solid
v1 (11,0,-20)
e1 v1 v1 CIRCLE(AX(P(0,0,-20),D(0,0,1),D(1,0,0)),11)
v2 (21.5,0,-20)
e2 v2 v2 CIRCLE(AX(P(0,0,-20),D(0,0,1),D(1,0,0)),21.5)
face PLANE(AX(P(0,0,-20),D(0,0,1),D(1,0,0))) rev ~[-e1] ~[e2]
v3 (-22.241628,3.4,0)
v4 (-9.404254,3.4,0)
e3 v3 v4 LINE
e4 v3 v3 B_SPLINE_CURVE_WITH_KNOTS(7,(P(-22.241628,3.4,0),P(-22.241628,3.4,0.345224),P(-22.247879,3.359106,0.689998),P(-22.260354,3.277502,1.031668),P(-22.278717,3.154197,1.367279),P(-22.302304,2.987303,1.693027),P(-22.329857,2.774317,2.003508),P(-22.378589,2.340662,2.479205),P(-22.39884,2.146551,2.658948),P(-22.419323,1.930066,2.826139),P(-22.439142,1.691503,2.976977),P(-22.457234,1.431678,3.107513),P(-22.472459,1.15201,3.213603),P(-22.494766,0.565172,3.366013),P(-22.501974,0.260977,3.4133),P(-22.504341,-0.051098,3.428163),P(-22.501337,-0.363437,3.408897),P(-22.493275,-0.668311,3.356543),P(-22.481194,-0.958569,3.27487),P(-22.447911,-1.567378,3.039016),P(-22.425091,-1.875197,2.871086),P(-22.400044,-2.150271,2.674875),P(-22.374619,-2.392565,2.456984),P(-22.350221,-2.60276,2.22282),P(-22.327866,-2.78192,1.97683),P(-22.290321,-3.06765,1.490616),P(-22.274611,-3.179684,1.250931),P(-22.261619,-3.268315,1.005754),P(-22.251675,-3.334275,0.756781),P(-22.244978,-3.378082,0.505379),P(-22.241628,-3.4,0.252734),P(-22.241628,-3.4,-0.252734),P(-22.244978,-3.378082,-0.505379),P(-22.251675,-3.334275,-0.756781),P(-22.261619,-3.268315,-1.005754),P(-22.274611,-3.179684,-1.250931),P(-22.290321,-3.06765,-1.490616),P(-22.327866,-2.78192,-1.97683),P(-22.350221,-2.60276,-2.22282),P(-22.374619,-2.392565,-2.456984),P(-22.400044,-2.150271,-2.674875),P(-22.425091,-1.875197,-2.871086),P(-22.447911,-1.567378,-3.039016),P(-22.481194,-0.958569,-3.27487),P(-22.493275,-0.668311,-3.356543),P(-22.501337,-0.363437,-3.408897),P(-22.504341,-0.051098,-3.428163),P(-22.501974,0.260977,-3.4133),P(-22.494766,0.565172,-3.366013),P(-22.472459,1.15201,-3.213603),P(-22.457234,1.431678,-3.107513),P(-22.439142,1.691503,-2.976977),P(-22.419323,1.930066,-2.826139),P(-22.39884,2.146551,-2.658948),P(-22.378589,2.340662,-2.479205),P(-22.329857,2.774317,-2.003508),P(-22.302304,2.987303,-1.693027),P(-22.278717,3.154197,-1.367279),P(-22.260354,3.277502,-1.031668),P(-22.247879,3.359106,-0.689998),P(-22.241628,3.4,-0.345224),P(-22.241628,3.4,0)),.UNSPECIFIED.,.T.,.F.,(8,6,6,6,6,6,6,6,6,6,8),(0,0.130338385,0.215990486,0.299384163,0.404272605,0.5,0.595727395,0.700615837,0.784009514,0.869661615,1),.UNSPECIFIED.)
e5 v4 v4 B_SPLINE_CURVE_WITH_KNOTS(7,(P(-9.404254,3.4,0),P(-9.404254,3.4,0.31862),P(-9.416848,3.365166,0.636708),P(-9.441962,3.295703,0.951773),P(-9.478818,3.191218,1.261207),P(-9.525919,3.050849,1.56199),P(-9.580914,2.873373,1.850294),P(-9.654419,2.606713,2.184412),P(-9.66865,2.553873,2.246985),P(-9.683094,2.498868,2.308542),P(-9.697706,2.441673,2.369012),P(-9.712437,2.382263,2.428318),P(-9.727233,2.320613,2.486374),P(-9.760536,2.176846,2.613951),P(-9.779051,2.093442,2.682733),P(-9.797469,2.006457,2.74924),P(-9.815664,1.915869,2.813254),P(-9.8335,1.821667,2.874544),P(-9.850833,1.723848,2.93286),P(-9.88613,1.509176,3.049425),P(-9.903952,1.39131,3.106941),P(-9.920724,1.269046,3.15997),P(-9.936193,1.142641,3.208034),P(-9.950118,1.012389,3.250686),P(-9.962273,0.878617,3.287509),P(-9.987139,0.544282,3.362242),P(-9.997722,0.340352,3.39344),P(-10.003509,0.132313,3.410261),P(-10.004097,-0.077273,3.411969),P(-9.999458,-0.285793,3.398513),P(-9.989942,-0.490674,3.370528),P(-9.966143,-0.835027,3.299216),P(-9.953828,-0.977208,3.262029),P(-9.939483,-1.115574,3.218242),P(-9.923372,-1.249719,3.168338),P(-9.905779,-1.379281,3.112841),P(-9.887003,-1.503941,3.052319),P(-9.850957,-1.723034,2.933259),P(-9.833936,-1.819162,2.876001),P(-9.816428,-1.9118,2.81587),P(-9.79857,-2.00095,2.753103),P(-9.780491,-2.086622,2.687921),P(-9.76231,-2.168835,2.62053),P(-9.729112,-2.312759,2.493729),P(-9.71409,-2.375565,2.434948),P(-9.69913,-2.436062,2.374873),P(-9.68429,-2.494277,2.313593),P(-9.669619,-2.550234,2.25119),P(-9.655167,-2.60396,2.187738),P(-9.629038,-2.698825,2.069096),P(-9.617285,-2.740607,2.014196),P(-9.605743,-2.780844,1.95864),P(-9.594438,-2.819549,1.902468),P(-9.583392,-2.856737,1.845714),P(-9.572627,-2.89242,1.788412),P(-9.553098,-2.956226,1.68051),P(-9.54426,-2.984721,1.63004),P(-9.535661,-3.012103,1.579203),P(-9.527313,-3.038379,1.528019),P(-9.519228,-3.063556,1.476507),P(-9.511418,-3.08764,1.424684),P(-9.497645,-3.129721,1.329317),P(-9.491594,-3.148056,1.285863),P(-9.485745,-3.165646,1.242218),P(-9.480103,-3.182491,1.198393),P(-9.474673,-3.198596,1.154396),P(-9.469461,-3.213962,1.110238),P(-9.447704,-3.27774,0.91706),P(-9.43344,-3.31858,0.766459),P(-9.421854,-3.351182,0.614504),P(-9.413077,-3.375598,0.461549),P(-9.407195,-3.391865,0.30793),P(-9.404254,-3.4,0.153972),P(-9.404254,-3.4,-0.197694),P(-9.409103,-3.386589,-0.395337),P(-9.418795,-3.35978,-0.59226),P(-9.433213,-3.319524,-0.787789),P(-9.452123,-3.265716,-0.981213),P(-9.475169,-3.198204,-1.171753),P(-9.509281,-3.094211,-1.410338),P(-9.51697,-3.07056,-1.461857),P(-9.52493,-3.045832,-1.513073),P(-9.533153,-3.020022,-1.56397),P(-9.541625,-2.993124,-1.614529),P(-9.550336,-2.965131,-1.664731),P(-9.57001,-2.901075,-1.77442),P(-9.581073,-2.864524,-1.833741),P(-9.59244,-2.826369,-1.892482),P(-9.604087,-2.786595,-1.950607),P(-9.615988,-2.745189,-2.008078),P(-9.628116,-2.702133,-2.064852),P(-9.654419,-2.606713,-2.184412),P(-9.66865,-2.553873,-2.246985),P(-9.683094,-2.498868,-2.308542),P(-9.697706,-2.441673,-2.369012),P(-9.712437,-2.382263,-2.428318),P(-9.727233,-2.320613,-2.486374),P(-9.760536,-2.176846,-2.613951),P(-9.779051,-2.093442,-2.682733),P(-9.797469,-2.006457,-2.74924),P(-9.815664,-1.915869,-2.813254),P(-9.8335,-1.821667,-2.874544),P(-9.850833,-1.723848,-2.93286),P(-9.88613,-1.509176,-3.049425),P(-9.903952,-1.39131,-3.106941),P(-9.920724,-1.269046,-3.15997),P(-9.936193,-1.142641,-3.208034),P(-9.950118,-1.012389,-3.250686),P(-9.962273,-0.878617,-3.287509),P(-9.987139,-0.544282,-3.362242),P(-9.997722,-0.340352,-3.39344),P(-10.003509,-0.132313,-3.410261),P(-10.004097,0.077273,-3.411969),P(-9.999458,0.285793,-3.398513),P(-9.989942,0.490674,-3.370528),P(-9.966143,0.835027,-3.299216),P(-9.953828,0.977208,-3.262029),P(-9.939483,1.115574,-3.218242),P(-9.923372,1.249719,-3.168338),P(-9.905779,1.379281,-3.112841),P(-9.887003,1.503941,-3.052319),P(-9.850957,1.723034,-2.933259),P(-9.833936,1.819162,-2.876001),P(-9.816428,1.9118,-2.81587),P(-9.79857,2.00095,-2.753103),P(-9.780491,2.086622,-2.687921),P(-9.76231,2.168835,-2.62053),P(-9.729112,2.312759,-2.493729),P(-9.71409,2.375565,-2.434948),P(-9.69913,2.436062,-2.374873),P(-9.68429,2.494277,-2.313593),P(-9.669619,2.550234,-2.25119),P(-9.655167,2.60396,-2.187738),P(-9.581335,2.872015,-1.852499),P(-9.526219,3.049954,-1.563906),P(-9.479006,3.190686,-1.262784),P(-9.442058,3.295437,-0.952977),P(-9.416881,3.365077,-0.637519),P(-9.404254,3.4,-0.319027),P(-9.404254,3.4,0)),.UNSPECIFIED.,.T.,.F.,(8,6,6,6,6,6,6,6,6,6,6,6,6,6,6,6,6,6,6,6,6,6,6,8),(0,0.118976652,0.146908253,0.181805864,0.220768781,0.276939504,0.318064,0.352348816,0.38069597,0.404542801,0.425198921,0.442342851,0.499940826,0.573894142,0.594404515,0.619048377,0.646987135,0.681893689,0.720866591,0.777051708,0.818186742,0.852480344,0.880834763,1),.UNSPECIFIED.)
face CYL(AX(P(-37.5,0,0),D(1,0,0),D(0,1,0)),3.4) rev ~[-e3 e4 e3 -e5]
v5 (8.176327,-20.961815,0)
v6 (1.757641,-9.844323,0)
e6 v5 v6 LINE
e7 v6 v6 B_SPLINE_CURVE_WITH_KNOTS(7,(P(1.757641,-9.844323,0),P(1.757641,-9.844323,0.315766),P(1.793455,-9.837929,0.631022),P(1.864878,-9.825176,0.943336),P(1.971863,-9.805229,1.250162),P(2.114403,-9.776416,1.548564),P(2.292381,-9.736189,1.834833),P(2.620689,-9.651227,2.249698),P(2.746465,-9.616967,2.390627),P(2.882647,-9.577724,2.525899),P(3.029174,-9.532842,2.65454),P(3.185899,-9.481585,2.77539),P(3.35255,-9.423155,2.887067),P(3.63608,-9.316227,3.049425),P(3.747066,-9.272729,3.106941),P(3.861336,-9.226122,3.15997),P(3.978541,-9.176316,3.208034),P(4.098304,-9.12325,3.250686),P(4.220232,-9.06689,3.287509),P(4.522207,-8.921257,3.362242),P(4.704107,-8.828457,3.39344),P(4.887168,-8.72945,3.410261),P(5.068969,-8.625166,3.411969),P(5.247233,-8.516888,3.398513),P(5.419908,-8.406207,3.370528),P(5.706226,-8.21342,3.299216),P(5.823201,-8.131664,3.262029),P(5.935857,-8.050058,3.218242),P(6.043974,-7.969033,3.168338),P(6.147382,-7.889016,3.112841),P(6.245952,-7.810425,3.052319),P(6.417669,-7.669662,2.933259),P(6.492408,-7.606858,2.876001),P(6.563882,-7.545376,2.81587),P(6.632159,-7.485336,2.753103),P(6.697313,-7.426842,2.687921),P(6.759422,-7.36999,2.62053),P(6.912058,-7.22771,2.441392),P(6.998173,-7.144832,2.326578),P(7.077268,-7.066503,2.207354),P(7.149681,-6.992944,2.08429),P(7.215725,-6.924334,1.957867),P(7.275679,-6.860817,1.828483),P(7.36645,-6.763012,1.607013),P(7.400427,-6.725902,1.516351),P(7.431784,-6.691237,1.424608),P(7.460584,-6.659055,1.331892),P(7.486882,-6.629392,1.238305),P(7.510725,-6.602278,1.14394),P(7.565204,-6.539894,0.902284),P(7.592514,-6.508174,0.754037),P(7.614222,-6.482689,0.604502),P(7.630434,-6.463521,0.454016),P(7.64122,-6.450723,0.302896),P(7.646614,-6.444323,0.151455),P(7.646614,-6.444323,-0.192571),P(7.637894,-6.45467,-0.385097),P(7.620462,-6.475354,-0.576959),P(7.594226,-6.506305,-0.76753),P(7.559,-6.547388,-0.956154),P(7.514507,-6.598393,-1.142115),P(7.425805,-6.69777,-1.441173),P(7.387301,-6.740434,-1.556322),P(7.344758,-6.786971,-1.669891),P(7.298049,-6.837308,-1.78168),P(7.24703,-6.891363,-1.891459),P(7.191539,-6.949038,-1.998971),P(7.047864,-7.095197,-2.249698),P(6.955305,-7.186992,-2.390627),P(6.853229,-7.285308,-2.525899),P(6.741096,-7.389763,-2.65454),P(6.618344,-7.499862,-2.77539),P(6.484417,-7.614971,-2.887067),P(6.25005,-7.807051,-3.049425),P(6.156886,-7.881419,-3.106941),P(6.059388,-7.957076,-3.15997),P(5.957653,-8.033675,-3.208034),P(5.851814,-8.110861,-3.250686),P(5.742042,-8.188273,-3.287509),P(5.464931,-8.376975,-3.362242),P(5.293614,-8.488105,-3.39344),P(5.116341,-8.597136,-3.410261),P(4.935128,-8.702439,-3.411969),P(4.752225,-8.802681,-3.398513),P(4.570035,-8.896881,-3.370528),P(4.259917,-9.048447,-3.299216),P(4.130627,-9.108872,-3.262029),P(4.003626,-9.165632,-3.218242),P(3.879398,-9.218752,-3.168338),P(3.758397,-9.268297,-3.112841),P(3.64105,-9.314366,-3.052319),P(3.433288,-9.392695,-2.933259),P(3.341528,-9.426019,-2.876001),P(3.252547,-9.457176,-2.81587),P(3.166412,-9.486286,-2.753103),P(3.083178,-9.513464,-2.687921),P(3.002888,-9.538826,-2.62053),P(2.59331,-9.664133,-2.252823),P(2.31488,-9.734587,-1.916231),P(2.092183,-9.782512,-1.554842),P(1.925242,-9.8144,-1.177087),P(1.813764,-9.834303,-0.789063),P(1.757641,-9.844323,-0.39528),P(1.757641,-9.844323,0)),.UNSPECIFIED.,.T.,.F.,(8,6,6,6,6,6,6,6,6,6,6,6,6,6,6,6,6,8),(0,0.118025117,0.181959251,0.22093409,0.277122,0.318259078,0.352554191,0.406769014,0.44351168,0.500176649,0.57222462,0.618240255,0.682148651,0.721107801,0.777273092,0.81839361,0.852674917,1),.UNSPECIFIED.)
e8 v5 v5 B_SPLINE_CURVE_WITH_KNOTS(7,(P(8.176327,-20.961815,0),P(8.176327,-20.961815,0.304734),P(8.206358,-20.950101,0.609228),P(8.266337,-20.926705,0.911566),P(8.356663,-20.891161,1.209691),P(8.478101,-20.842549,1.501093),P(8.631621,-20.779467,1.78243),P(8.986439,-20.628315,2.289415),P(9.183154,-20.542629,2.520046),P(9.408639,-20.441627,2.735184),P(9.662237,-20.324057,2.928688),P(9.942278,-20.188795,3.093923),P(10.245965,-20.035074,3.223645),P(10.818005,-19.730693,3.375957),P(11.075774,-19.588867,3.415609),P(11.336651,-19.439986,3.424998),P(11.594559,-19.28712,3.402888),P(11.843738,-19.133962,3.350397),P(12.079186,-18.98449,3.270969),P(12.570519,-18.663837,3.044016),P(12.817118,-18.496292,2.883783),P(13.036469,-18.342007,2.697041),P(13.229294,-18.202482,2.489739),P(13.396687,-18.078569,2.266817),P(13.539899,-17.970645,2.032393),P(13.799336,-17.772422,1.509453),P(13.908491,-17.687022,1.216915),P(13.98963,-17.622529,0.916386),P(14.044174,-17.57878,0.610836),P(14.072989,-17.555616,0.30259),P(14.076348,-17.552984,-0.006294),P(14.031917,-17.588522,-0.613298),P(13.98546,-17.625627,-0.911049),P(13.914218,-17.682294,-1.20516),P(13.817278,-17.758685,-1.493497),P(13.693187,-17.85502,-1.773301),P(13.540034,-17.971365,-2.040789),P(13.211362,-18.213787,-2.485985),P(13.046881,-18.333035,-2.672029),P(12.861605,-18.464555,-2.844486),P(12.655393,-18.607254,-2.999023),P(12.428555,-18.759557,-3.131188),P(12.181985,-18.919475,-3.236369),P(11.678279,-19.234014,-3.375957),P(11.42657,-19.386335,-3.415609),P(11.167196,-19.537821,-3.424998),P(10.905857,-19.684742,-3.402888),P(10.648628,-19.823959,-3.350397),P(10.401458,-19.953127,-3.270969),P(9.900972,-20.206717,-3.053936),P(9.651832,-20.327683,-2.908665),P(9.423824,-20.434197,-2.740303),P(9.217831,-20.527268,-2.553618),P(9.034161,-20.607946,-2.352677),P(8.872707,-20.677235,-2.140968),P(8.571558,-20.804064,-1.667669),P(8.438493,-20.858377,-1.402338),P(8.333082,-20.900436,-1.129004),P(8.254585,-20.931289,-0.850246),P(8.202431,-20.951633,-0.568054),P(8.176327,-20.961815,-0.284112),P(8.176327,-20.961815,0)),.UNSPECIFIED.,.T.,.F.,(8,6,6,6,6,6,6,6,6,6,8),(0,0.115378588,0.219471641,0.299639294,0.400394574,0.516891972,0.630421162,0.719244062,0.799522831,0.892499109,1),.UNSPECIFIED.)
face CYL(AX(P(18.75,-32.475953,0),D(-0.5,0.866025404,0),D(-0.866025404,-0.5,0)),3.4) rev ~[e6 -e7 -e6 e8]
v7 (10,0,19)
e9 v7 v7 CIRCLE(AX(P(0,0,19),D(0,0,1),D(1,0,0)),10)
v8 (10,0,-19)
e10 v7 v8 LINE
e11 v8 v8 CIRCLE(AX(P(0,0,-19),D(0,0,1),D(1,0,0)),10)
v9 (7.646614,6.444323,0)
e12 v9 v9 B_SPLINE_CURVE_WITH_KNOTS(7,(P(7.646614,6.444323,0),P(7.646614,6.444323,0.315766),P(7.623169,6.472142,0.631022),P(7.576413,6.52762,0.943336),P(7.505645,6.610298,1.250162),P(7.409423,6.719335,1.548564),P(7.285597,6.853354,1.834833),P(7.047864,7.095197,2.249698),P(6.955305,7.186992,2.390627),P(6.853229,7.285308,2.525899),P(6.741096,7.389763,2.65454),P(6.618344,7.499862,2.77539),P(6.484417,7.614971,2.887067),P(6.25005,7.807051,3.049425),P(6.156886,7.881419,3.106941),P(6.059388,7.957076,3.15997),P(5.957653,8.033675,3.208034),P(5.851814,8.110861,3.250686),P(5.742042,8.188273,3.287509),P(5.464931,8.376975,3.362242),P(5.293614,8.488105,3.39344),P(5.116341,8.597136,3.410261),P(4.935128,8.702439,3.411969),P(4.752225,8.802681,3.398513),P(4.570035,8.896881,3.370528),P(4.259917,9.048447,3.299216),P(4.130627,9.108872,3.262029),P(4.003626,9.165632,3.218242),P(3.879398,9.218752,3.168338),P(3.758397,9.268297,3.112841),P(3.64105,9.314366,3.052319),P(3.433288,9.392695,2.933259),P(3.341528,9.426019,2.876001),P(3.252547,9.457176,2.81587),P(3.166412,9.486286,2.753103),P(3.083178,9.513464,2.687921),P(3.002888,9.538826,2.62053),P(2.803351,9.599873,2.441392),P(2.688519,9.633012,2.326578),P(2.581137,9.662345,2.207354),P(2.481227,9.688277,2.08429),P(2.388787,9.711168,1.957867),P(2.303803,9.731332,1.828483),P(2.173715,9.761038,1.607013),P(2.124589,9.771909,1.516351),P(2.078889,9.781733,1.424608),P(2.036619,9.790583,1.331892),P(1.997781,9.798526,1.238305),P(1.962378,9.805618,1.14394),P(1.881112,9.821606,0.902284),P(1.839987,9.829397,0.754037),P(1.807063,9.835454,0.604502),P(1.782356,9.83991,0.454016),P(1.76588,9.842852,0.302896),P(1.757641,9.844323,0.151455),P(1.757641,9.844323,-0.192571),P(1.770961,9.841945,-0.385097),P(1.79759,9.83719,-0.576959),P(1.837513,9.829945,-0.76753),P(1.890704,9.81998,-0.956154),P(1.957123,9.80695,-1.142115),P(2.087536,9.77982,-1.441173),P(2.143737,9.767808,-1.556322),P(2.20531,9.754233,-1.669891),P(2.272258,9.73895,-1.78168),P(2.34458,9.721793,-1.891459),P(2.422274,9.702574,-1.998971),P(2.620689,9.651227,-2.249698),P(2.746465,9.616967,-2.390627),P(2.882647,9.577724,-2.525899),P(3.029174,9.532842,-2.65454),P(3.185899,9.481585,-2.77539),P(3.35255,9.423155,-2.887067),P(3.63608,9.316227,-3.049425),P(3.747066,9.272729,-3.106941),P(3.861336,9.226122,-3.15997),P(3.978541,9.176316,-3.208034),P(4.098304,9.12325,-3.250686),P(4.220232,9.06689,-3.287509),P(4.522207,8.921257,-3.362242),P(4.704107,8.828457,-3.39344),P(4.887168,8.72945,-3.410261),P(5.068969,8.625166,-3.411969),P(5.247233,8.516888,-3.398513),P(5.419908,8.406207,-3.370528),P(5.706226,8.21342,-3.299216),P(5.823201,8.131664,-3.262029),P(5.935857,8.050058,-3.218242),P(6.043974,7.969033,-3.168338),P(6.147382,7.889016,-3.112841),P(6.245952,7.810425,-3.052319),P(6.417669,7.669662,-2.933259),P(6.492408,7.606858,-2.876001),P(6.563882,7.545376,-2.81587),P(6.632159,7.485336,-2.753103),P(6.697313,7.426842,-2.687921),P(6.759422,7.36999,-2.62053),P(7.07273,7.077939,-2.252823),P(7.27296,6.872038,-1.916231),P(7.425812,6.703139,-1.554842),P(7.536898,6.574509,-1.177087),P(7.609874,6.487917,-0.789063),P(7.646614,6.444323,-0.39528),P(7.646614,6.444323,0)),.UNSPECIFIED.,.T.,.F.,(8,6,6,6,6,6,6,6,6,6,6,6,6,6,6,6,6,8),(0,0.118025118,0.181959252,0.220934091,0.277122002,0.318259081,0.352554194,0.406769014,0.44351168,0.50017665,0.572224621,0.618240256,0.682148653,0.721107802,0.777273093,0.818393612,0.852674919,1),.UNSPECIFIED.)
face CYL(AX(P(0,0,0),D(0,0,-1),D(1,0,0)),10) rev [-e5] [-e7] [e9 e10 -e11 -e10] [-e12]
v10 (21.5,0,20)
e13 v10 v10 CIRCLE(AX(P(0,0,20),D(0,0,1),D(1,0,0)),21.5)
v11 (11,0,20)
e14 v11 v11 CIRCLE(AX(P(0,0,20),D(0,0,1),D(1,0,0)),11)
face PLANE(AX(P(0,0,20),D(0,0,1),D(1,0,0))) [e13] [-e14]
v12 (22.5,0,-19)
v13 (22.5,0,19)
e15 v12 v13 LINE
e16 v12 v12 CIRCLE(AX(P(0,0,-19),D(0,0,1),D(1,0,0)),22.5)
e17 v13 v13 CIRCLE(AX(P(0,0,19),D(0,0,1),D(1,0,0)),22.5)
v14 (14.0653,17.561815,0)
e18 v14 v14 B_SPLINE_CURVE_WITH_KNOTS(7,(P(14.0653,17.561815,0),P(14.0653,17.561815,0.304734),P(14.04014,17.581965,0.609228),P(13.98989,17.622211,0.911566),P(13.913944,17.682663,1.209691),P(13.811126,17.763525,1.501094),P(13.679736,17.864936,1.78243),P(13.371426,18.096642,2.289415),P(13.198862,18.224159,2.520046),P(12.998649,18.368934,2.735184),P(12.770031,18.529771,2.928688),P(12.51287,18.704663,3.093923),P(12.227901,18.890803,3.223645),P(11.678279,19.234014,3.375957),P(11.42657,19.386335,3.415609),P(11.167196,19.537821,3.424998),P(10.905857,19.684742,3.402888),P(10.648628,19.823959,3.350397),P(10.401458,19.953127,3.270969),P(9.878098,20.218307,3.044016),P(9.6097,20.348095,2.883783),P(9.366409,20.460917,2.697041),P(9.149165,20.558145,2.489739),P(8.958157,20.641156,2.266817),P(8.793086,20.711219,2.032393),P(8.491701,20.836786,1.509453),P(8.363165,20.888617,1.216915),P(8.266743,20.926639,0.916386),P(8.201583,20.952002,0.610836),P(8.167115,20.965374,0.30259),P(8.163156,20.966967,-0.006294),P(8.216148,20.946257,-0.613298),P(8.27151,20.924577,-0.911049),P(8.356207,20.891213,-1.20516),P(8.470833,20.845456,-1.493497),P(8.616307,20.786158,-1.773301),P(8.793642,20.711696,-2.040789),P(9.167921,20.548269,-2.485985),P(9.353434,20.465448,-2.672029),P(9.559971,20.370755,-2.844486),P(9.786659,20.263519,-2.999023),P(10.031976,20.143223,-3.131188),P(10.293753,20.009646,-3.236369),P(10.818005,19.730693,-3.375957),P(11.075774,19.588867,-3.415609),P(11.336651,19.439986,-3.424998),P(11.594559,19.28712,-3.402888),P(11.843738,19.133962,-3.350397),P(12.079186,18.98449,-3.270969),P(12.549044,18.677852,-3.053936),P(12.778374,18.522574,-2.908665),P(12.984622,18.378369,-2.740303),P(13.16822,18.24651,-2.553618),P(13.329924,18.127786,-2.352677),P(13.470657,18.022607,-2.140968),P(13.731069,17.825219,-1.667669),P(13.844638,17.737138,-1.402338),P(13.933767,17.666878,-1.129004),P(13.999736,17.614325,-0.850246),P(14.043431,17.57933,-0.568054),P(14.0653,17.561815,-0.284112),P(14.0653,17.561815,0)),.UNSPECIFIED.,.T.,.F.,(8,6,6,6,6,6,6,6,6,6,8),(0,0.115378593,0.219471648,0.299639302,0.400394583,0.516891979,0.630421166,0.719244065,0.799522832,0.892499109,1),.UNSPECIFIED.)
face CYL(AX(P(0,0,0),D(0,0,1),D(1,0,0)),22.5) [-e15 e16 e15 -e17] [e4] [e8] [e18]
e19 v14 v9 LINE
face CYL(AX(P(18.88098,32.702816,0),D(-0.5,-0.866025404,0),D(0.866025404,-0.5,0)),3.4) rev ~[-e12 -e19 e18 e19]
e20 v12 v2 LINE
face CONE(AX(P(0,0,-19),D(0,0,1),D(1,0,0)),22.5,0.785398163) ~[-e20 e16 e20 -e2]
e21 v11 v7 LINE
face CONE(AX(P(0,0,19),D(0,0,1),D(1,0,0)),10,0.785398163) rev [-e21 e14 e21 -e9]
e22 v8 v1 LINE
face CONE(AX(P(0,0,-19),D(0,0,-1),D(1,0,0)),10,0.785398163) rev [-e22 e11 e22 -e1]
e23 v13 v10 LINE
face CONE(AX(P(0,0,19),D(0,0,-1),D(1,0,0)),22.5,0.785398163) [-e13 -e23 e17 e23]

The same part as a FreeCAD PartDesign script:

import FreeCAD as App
import Part
import Sketcher
from FreeCAD import Vector


def edges_at(feature, points):
    """Names of the edges that pass closest to the given points."""
    edges = feature.Shape.Edges
    near = lambda p: min(range(len(edges)), key=lambda i: edges[i].distToShape(Part.Vertex(*p))[0])
    return sorted({f"Edge{near(p) + 1}" for p in points})

doc = App.newDocument("Part")
params = doc.addObject("Spreadsheet::Sheet", "Params")
for row, (alias, value) in enumerate([
    ("sketch1_diameter", "45 mm"),
    ("sketch1_diameter2", "20 mm"),
    ("pad1_length", "40 mm"),
    ("chamfer_size", "1 mm"),
    ("sketch2_diameter", "6.8 mm"),
    ("hole_diameter", "6.8 mm"),
    ("hole_depth", "15 mm"),
    ("sketch3_diameter", "6.8 mm"),
    ("hole2_diameter", "6.8 mm"),
    ("hole2_depth", "15 mm"),
    ("sketch4_diameter", "6.8 mm"),
    ("hole3_diameter", "6.8 mm"),
    ("hole3_depth", "15 mm"),
], start=1):
    params.set(f"A{row}", alias)
    params.set(f"B{row}", "=" + value)
    params.setAlias(f"B{row}", alias)

body = doc.addObject("PartDesign::Body", "Body")

sketch1 = body.newObject("Sketcher::SketchObject", "Sketch")
sketch1.AttachmentSupport = (doc.getObject("XY_Plane"), [""])
sketch1.MapMode = "FlatFace"
sketch1.addGeometry(Part.Circle(Vector(0, 0, 0), Vector(0, 0, 1), 22), False)
sketch1.addGeometry(Part.Circle(Vector(0, 0, 0), Vector(0, 0, 1), 10), False)
sketch1.addConstraint(Sketcher.Constraint("Coincident", 0, 3, -1, 1))
sketch1.addConstraint(Sketcher.Constraint("Coincident", 1, 3, -1, 1))
sketch1.addConstraint(Sketcher.Constraint("Diameter", 0, 45.0))
sketch1.addConstraint(Sketcher.Constraint("Diameter", 1, 20.0))
sketch1.setExpression("Constraints[2]", "Params.sketch1_diameter")
sketch1.setExpression("Constraints[3]", "Params.sketch1_diameter2")
pad1 = body.newObject("PartDesign::Pad", "Pad")
pad1.Profile = sketch1
pad1.setExpression("Length", "Params.pad1_length")
pad1.Midplane = True
doc.recompute()

chamfer = body.newObject("PartDesign::Chamfer", "Chamfer")
chamfer.Base = (pad1, edges_at(pad1, [
    (-22.5, 0, 20),
    (-22.5, 0, -20),
    (-10, 0, 20),
    (-10, 0, -20),
]))
chamfer.setExpression("Size", "Params.chamfer_size")

sketch2 = body.newObject("Sketcher::SketchObject", "Sketch001")
sketch2.Placement = App.Placement(Vector(11.25, -19.485572, 0), App.Rotation(Vector(0.866025404, 0.5, 0), Vector(0, 0, 1), Vector(0.5, -0.866025404, 0), "ZXY"))
sketch2.addGeometry(Part.Circle(Vector(0, 0, 0), Vector(0, 0, 1), 3.4), False)
sketch2.addConstraint(Sketcher.Constraint("Coincident", 0, 3, -1, 1))
sketch2.addConstraint(Sketcher.Constraint("Diameter", 0, 6.8))
sketch2.setExpression("Constraints[1]", "Params.sketch2_diameter")
doc.recompute()
hole = body.newObject("PartDesign::Hole", "Hole")
hole.Profile = sketch2
hole.ThreadType = "None"
hole.setExpression("Diameter", "Params.hole_diameter")
hole.DepthType = "Dimension"
hole.setExpression("Depth", "Params.hole_depth")
hole.DrillPoint = "Angled"
hole.DrillPointAngle = 118

sketch3 = body.newObject("Sketcher::SketchObject", "Sketch002")
sketch3.Placement = App.Placement(Vector(11.38098, 19.712435, 0), App.Rotation(Vector(-0.866025404, 0.5, 0), Vector(0, 0, 1), Vector(0.5, 0.866025404, 0), "ZXY"))
sketch3.addGeometry(Part.Circle(Vector(0, 0, 0), Vector(0, 0, 1), 3.4), False)
sketch3.addConstraint(Sketcher.Constraint("Coincident", 0, 3, -1, 1))
sketch3.addConstraint(Sketcher.Constraint("Diameter", 0, 6.8))
sketch3.setExpression("Constraints[1]", "Params.sketch3_diameter")
doc.recompute()
hole2 = body.newObject("PartDesign::Hole", "Hole001")
hole2.Profile = sketch3
hole2.ThreadType = "None"
hole2.setExpression("Diameter", "Params.hole2_diameter")
hole2.DepthType = "Dimension"
hole2.setExpression("Depth", "Params.hole2_depth")
hole2.DrillPoint = "Angled"
hole2.DrillPointAngle = 118

sketch4 = body.newObject("Sketcher::SketchObject", "Sketch003")
sketch4.AttachmentSupport = (doc.getObject("YZ_Plane"), [""])
sketch4.MapMode = "FlatFace"
sketch4.AttachmentOffset = App.Placement(Vector(0, 0, -22.5), App.Rotation())
sketch4.addGeometry(Part.Circle(Vector(0, 0, 0), Vector(0, 0, 1), 3.4), False)
sketch4.addConstraint(Sketcher.Constraint("Coincident", 0, 3, -1, 1))
sketch4.addConstraint(Sketcher.Constraint("Diameter", 0, 6.8))
sketch4.setExpression("Constraints[1]", "Params.sketch4_diameter")
doc.recompute()
hole3 = body.newObject("PartDesign::Hole", "Hole002")
hole3.Profile = sketch4
hole3.ThreadType = "None"
hole3.setExpression("Diameter", "Params.hole3_diameter")
hole3.DepthType = "Dimension"
hole3.setExpression("Depth", "Params.hole3_depth")
hole3.DrillPoint = "Angled"
hole3.DrillPointAngle = 118
hole3.Reversed = True

doc.recompute()
